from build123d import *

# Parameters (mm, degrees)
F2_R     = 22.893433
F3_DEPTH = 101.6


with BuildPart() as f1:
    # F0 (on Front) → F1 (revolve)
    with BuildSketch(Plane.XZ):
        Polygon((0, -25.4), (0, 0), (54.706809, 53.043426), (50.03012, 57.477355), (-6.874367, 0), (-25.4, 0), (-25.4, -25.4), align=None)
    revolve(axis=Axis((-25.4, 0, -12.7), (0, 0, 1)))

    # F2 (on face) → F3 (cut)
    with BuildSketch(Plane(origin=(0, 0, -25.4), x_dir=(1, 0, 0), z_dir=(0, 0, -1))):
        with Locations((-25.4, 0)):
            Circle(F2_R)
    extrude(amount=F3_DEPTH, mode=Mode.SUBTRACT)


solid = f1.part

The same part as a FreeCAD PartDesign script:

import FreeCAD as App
import Part
import Sketcher

V = App.Vector
Q = App.Units.Quantity


def add_polygon(sketch, points):
    """Adds a closed chain of lines whose ends are joined by coincident constraints."""
    first, n = sketch.GeometryCount, len(points)
    for a, b in zip(points, points[1:] + points[:1]):
        sketch.addGeometry(Part.LineSegment(App.Vector(*a, 0), App.Vector(*b, 0)), False)
    for i in range(n):
        sketch.addConstraint(Sketcher.Constraint("Coincident", first + i, 2, first + (i + 1) % n, 1))

doc = App.newDocument("Part")
params = doc.addObject("Spreadsheet::Sheet", "Params")
for row, (alias, value) in enumerate([
    ("sketch1_width", "1 in"),
    ("sketch1_length", "3 in"),
    ("revolution_angle", "360 deg"),
    ("pocket1_length", "4 in"),
], start=1):
    params.set(f"A{row}", alias)
    params.set(f"B{row}", "=" + value)
    params.setAlias(f"B{row}", alias)

body = doc.addObject("PartDesign::Body", "Body")

# Sketch on XZ plane
sketch1 = body.newObject("Sketcher::SketchObject", "Sketch")
sketch1.AttachmentSupport = (doc.getObject("XZ_Plane"), [""])
sketch1.MapMode = "FlatFace"
add_polygon(sketch1, [(0, -25), (0, 0), (55, 53), (50, 57), (-7, 0), (-25, 0), (-25, -25)])  # lines 0-6
sketch1.addGeometry(Part.LineSegment(V(-25, -25, 0), V(-25, 57, 0)), True)  # axis
sketch1.addConstraint(Sketcher.Constraint("Vertical", 0))
sketch1.addConstraint(Sketcher.Constraint("Horizontal", 4))
sketch1.addConstraint(Sketcher.Constraint("Vertical", 5))
sketch1.addConstraint(Sketcher.Constraint("Horizontal", 6))
sketch1.addConstraint(Sketcher.Constraint("Vertical", 7))
sketch1.addConstraint(Sketcher.Constraint("Coincident", 0, 2, -1, 1))
sketch1.addConstraint(Sketcher.Constraint("Coincident", 7, 1, 5, 2))
sketch1.addConstraint(Sketcher.Constraint("PointOnObject", 3, 2, -1))
sketch1.addConstraint(Sketcher.Constraint("Horizontal", 2, 2, 7, 2))
sketch1.addConstraint(Sketcher.Constraint("Equal", 6, 0))
sketch1.addConstraint(Sketcher.Constraint("DistanceX", 6, 1, 6, 2, Q("1 in")))
sketch1.addConstraint(Sketcher.Constraint("Distance", 1, Q("3 in")))
sketch1.addConstraint(Sketcher.Constraint("Distance", 3, 80.881191))
sketch1.addConstraint(Sketcher.Constraint("DistanceX", 4, 2, 4, 1, 18.525633))
sketch1.addConstraint(Sketcher.Constraint("DistanceY", 7, 1, 7, 2, 82.877355))
sketch1.addConstraint(Sketcher.Constraint("DistanceX", -1, 1, 1, 2, 54.706809))
sketch1.setExpression("Constraints[17]", "Params.sketch1_width")
sketch1.setExpression("Constraints[18]", "Params.sketch1_length")
revolution = body.newObject("PartDesign::Revolution", "Revolution")
revolution.Profile = sketch1
revolution.ReferenceAxis = (sketch1, ["Axis0"])
revolution.setExpression("Angle", "Params.revolution_angle")

# Sketch on XY plane
sketch2 = body.newObject("Sketcher::SketchObject", "Sketch001")
sketch2.AttachmentSupport = (doc.getObject("XY_Plane"), [""])
sketch2.MapMode = "FlatFace"
sketch2.AttachmentOffset = App.Placement(V(0, 0, -1 * 25.4), App.Rotation())
sketch2.addGeometry(Part.Circle(V(-25, 0, 0), V(0, 0, 1), 23), False)
sketch2.addConstraint(Sketcher.Constraint("PointOnObject", 0, 3, -1))
sketch2.addConstraint(Sketcher.Constraint("DistanceX", 0, 3, -1, 1, Q("1 in")))
sketch2.addConstraint(Sketcher.Constraint("Diameter", 0, 45.786866))
pocket1 = body.newObject("PartDesign::Pocket", "Pocket")
pocket1.Profile = sketch2
pocket1.setExpression("Length", "Params.pocket1_length")

doc.recompute()
